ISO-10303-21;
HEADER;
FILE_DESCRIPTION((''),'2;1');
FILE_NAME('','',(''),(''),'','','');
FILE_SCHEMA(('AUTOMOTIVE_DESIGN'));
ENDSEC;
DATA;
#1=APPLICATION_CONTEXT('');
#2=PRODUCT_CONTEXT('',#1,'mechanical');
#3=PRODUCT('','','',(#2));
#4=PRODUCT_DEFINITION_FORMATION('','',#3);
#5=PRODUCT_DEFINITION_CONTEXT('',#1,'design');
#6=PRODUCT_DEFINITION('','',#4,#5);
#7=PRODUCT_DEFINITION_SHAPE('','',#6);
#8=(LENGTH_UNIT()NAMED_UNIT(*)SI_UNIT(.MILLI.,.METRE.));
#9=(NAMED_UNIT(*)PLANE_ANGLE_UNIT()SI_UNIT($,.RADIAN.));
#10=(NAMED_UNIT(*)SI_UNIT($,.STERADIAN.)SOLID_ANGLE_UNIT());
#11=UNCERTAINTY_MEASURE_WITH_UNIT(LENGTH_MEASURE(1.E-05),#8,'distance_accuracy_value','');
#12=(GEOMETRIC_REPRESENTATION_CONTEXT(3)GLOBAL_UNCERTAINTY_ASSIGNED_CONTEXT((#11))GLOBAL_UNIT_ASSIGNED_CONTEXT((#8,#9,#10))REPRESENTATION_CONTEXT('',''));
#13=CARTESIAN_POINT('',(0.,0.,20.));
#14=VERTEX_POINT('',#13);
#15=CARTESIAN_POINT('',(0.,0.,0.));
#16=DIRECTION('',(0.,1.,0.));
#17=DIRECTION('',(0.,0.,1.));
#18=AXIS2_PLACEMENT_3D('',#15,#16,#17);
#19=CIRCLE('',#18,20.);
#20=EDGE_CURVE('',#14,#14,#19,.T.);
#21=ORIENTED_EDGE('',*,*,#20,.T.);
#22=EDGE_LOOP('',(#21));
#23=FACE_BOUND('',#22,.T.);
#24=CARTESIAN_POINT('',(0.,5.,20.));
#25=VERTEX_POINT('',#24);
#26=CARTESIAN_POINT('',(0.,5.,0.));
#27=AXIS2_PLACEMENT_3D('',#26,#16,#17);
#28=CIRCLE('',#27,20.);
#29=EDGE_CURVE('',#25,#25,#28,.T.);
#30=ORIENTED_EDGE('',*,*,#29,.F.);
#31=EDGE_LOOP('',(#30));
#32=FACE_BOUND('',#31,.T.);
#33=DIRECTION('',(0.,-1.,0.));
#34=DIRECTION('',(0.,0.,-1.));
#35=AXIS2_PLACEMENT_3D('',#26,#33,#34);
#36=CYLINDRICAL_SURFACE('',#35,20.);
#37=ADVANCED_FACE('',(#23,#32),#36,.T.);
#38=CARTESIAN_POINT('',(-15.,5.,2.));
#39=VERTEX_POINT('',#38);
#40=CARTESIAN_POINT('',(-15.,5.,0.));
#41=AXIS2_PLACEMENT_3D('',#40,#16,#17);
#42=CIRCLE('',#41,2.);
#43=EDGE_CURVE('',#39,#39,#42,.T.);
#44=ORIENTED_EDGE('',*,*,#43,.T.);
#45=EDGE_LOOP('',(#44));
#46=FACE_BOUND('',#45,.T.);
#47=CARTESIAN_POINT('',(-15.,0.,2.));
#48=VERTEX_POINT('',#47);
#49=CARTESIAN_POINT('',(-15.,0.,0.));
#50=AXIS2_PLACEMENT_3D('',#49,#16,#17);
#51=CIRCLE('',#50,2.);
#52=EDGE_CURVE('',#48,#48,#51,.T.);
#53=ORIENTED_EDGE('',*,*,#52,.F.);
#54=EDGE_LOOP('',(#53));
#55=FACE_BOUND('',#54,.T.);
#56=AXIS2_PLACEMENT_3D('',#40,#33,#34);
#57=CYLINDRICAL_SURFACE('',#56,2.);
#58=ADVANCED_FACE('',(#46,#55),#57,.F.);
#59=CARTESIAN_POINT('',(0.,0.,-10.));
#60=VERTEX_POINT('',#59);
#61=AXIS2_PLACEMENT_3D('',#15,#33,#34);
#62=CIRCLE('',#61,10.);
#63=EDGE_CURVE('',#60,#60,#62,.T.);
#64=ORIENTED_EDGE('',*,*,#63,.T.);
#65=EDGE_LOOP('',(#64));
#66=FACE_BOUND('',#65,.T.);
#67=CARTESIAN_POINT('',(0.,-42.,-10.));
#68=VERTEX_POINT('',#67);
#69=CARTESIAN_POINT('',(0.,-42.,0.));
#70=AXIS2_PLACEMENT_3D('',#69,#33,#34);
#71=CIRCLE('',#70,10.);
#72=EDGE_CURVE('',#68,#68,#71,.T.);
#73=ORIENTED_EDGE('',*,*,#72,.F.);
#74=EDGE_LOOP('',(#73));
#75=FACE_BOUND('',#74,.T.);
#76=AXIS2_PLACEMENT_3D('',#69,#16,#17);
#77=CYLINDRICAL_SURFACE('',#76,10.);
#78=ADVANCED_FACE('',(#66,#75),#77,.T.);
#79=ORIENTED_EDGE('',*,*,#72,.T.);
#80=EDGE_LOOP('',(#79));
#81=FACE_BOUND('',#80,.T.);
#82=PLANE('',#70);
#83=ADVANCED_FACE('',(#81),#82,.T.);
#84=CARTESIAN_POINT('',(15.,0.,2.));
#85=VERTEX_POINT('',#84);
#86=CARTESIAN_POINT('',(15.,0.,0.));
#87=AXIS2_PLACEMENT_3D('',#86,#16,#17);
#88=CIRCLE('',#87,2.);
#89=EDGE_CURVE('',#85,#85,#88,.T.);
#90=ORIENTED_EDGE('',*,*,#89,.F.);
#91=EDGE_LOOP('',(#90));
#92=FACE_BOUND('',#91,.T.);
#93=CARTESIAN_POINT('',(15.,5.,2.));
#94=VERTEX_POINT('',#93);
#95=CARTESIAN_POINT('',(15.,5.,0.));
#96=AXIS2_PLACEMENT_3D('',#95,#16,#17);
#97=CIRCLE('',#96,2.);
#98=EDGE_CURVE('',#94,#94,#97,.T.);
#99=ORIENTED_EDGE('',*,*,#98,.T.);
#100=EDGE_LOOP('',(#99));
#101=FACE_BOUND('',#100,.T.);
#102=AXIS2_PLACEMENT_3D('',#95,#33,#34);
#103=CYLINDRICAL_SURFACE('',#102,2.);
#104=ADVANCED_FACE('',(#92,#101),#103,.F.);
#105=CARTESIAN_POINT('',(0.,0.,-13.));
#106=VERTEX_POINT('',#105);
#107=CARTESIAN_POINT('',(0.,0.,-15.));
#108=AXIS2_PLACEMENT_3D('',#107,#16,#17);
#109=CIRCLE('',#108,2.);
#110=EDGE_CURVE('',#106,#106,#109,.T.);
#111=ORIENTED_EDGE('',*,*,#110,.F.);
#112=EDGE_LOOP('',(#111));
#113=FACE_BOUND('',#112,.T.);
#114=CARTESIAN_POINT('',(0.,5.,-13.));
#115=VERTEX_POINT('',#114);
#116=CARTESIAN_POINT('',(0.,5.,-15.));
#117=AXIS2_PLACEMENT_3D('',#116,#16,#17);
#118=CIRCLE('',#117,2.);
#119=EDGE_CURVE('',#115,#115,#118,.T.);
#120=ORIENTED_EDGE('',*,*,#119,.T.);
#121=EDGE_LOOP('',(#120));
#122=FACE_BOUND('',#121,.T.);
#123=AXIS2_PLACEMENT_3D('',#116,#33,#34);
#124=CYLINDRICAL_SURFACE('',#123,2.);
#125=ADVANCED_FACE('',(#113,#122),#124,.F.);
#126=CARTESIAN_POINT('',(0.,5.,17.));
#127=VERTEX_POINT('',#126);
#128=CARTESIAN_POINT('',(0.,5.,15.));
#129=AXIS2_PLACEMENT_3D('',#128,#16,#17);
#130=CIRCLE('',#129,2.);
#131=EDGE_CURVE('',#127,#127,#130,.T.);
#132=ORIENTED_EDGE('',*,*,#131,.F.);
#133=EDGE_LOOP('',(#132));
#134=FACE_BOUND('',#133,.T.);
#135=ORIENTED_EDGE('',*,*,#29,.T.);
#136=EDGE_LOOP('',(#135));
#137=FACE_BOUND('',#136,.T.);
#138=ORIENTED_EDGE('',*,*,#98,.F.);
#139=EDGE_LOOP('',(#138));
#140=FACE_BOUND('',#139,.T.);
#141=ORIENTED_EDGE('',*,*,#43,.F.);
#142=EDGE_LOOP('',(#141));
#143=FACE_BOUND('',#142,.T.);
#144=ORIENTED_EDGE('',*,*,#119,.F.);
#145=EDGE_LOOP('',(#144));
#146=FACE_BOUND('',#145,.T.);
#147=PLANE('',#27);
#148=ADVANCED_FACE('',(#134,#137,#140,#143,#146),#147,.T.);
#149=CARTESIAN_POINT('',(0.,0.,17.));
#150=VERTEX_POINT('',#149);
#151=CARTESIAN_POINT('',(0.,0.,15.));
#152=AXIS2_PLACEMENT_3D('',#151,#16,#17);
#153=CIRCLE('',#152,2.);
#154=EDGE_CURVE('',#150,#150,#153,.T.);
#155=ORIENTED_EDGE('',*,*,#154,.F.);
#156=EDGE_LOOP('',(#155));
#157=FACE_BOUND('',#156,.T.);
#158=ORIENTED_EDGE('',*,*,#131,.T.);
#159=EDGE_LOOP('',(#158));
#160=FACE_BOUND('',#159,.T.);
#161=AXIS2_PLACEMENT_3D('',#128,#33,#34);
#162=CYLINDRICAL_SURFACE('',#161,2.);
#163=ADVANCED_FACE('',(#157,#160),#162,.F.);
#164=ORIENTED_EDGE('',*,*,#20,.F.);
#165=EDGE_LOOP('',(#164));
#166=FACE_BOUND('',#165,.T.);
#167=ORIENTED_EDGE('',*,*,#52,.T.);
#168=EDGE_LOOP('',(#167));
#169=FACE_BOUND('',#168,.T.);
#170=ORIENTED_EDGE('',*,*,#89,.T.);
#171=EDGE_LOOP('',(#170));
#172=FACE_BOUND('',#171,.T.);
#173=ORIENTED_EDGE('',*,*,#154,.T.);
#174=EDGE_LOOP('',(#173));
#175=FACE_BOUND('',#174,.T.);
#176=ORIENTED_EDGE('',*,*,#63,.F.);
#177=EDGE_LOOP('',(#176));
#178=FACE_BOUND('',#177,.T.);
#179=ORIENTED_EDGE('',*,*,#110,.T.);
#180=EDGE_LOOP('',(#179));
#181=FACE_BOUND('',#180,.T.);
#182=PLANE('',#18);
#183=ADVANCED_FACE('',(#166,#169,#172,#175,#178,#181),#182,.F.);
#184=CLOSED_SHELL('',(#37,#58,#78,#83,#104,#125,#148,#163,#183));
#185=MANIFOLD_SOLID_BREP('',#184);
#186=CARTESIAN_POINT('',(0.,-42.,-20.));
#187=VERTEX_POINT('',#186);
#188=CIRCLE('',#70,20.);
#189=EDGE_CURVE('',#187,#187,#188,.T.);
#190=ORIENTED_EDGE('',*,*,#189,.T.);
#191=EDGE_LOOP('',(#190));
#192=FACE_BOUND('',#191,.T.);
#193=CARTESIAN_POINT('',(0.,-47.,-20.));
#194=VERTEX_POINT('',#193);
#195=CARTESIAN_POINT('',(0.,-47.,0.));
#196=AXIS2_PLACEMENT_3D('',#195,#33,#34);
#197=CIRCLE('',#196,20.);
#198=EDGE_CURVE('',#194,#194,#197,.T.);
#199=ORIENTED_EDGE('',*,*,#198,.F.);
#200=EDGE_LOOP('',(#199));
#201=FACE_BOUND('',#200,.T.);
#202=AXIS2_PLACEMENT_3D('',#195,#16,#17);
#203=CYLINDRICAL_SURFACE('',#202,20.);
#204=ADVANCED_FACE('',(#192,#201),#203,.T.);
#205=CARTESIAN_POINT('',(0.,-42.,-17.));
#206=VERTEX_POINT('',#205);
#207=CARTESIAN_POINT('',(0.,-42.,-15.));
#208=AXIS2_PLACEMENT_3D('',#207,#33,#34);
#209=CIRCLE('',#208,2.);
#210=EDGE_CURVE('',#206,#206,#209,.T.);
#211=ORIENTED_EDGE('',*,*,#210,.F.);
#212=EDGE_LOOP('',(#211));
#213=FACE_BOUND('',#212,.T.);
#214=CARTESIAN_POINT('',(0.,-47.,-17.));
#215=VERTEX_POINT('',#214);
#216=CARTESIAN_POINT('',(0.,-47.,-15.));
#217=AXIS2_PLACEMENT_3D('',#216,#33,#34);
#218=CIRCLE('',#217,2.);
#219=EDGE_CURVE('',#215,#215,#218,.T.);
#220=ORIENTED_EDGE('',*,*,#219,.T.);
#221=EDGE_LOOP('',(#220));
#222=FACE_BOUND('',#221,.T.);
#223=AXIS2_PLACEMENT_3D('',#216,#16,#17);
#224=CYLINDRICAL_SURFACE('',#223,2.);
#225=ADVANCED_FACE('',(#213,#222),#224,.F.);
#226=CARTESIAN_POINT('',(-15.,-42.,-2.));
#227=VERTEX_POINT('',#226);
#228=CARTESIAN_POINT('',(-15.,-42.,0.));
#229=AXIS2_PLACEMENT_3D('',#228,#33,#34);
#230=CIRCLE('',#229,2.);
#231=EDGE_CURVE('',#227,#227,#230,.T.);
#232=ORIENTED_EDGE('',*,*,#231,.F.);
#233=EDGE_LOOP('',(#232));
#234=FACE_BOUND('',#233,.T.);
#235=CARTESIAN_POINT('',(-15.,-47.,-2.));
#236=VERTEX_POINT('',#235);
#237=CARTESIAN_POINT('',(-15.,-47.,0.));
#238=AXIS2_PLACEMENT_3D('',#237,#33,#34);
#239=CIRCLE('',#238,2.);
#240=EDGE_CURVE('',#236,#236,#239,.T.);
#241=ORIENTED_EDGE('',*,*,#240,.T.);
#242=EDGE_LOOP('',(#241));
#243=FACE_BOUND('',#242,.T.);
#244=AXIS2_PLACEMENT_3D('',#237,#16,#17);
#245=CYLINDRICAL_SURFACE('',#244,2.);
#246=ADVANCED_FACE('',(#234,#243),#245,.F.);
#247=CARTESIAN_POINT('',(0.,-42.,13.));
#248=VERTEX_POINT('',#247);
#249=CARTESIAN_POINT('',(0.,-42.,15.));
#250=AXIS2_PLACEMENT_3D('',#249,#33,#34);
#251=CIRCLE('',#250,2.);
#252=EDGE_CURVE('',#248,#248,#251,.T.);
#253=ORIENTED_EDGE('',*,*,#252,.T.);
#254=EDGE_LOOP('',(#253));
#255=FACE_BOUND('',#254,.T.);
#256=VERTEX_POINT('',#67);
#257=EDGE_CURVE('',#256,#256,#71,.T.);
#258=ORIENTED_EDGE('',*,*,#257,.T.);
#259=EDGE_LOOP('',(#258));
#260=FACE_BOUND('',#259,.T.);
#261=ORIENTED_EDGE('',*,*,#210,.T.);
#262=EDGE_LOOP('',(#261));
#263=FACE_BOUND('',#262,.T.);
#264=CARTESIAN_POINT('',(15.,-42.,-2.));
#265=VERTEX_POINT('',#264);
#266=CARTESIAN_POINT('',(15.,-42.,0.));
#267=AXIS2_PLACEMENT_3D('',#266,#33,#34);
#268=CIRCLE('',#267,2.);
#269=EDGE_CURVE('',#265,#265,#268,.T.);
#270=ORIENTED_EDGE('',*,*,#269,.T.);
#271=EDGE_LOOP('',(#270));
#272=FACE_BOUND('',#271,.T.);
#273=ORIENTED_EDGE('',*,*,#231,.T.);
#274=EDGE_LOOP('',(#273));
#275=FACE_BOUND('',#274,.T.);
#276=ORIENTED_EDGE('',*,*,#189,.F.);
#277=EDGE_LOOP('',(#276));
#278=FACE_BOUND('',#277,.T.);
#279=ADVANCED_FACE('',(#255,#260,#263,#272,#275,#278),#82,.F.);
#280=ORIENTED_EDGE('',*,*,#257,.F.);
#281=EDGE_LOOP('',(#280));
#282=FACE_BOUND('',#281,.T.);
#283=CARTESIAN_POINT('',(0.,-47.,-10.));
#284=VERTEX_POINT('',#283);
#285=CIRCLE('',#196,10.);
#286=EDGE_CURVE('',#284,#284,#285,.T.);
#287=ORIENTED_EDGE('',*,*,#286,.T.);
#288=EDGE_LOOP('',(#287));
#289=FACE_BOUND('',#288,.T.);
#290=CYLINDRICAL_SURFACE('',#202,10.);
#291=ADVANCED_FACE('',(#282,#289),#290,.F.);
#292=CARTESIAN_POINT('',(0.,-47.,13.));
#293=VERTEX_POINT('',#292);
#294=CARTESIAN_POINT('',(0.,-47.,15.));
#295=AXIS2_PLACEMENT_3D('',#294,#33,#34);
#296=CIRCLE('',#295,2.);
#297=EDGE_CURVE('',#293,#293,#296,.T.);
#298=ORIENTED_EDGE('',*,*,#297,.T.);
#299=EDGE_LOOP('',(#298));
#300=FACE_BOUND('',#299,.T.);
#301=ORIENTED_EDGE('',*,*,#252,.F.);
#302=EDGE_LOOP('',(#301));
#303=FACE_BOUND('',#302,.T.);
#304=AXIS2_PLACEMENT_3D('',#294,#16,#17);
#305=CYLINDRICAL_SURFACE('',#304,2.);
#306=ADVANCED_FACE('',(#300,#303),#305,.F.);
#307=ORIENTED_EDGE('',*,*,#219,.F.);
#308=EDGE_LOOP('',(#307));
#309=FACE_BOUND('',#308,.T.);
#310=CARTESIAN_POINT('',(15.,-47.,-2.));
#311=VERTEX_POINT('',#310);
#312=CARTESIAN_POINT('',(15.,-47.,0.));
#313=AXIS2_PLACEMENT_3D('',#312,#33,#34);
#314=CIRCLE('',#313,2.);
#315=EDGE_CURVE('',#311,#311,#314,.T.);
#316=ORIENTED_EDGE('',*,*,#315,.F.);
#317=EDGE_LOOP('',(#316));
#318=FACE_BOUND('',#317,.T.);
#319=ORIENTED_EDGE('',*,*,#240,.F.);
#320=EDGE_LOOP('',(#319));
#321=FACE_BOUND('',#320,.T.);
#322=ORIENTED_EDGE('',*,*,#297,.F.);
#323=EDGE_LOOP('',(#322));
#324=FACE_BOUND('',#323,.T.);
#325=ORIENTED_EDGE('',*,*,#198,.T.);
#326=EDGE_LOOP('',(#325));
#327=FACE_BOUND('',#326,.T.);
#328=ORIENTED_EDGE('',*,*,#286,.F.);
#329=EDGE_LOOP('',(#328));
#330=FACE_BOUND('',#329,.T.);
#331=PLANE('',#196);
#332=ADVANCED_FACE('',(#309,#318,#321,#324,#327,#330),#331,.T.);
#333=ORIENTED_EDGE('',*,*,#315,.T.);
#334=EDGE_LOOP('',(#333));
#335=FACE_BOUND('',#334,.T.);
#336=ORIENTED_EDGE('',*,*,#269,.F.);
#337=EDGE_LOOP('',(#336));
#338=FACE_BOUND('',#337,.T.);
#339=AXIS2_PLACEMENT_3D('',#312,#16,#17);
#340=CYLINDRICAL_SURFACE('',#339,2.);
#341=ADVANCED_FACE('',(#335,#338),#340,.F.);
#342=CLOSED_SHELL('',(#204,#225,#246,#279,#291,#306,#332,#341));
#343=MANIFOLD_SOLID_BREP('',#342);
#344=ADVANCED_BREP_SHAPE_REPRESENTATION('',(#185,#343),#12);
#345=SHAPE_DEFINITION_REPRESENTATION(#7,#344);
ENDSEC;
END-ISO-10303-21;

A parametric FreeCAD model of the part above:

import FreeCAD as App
import Part
import Sketcher

V = App.Vector

doc = App.newDocument("Part")
body = doc.addObject("PartDesign::Body", "Body")

sketch1 = body.newObject("Sketcher::SketchObject", "Sketch")
sketch1.AttachmentSupport = (doc.getObject("XZ_Plane"), [""])
sketch1.MapMode = "FlatFace"
sketch1.addGeometry([
    Part.Circle(V(0, 0, 0), V(0, 0, 1), 20),
    Part.Circle(V(0, 15, 0), V(0, 0, 1), 2),
    Part.Circle(V(-15, 0, 0), V(0, 0, 1), 2),
    Part.Circle(V(15, 0, 0), V(0, 0, 1), 2),
    Part.Circle(V(0, -15, 0), V(0, 0, 1), 2),
], False)
sketch1.addConstraint([
    Sketcher.Constraint("Coincident", 0, 3, -1, 1),
    Sketcher.Constraint("Equal", 1, 2),
    Sketcher.Constraint("Equal", 2, 3),
    Sketcher.Constraint("Equal", 3, 4),
    Sketcher.Constraint("Symmetric", 2, 3, 3, 3, -1, 1),
    Sketcher.Constraint("Symmetric", 1, 3, 4, 3, -1, 1),
    Sketcher.Constraint("PointOnObject", 1, 3, -2),
    Sketcher.Constraint("PointOnObject", 2, 3, -1),
    Sketcher.Constraint("Diameter", 0, 40.0),
    Sketcher.Constraint("Diameter", 1, 4.0),
    Sketcher.Constraint("DistanceY", -1, 1, 1, 3, 15.0),
    Sketcher.Constraint("DistanceX", 2, 3, -1, 1, 15.0),
])
pad1 = body.newObject("PartDesign::Pad", "Pad")
pad1.Profile = sketch1
pad1.Length = 5
pad1.Reversed = True

sketch2 = body.newObject("Sketcher::SketchObject", "Sketch001")
sketch2.AttachmentSupport = (doc.getObject("XZ_Plane"), [""])
sketch2.MapMode = "FlatFace"
sketch2.addGeometry(Part.Circle(V(0, 0, 0), V(0, 0, 1), 10), False)
sketch2.addConstraint([
    Sketcher.Constraint("Coincident", 0, 3, -1, 1),
    Sketcher.Constraint("Diameter", 0, 20.0),
])
pad2 = body.newObject("PartDesign::Pad", "Pad001")
pad2.Profile = sketch2
pad2.Length = 42
body2 = doc.addObject("PartDesign::Body", "Body001")

sketch3 = body2.newObject("Sketcher::SketchObject", "Sketch002")
sketch3.AttachmentSupport = (doc.getObject("XZ_Plane001"), [""])
sketch3.MapMode = "FlatFace"
sketch3.AttachmentOffset = App.Placement(V(0, 0, 42), App.Rotation())
sketch3.addGeometry([
    Part.Circle(V(0, 0, 0), V(0, 0, 1), 20),
    Part.Circle(V(0, -15, 0), V(0, 0, 1), 2),
    Part.Circle(V(-15, 0, 0), V(0, 0, 1), 2),
    Part.Circle(V(0, 0, 0), V(0, 0, 1), 10),
    Part.Circle(V(15, 0, 0), V(0, 0, 1), 2),
    Part.Circle(V(0, 15, 0), V(0, 0, 1), 2),
], False)
sketch3.addConstraint([
    Sketcher.Constraint("Coincident", 0, 3, -1, 1),
    Sketcher.Constraint("Coincident", 3, 3, -1, 1),
    Sketcher.Constraint("Equal", 1, 2),
    Sketcher.Constraint("Equal", 2, 4),
    Sketcher.Constraint("Equal", 4, 5),
    Sketcher.Constraint("Symmetric", 2, 3, 4, 3, -1, 1),
    Sketcher.Constraint("Symmetric", 1, 3, 5, 3, -1, 1),
    Sketcher.Constraint("PointOnObject", 1, 3, -2),
    Sketcher.Constraint("PointOnObject", 2, 3, -1),
    Sketcher.Constraint("Diameter", 0, 40.0),
    Sketcher.Constraint("Diameter", 1, 4.0),
    Sketcher.Constraint("Diameter", 3, 20.0),
    Sketcher.Constraint("DistanceY", 1, 3, -1, 1, 15.0),
    Sketcher.Constraint("DistanceX", 2, 3, -1, 1, 15.0),
])
pad3 = body2.newObject("PartDesign::Pad", "Pad002")
pad3.Profile = sketch3
pad3.Length = 5

doc.recompute()
